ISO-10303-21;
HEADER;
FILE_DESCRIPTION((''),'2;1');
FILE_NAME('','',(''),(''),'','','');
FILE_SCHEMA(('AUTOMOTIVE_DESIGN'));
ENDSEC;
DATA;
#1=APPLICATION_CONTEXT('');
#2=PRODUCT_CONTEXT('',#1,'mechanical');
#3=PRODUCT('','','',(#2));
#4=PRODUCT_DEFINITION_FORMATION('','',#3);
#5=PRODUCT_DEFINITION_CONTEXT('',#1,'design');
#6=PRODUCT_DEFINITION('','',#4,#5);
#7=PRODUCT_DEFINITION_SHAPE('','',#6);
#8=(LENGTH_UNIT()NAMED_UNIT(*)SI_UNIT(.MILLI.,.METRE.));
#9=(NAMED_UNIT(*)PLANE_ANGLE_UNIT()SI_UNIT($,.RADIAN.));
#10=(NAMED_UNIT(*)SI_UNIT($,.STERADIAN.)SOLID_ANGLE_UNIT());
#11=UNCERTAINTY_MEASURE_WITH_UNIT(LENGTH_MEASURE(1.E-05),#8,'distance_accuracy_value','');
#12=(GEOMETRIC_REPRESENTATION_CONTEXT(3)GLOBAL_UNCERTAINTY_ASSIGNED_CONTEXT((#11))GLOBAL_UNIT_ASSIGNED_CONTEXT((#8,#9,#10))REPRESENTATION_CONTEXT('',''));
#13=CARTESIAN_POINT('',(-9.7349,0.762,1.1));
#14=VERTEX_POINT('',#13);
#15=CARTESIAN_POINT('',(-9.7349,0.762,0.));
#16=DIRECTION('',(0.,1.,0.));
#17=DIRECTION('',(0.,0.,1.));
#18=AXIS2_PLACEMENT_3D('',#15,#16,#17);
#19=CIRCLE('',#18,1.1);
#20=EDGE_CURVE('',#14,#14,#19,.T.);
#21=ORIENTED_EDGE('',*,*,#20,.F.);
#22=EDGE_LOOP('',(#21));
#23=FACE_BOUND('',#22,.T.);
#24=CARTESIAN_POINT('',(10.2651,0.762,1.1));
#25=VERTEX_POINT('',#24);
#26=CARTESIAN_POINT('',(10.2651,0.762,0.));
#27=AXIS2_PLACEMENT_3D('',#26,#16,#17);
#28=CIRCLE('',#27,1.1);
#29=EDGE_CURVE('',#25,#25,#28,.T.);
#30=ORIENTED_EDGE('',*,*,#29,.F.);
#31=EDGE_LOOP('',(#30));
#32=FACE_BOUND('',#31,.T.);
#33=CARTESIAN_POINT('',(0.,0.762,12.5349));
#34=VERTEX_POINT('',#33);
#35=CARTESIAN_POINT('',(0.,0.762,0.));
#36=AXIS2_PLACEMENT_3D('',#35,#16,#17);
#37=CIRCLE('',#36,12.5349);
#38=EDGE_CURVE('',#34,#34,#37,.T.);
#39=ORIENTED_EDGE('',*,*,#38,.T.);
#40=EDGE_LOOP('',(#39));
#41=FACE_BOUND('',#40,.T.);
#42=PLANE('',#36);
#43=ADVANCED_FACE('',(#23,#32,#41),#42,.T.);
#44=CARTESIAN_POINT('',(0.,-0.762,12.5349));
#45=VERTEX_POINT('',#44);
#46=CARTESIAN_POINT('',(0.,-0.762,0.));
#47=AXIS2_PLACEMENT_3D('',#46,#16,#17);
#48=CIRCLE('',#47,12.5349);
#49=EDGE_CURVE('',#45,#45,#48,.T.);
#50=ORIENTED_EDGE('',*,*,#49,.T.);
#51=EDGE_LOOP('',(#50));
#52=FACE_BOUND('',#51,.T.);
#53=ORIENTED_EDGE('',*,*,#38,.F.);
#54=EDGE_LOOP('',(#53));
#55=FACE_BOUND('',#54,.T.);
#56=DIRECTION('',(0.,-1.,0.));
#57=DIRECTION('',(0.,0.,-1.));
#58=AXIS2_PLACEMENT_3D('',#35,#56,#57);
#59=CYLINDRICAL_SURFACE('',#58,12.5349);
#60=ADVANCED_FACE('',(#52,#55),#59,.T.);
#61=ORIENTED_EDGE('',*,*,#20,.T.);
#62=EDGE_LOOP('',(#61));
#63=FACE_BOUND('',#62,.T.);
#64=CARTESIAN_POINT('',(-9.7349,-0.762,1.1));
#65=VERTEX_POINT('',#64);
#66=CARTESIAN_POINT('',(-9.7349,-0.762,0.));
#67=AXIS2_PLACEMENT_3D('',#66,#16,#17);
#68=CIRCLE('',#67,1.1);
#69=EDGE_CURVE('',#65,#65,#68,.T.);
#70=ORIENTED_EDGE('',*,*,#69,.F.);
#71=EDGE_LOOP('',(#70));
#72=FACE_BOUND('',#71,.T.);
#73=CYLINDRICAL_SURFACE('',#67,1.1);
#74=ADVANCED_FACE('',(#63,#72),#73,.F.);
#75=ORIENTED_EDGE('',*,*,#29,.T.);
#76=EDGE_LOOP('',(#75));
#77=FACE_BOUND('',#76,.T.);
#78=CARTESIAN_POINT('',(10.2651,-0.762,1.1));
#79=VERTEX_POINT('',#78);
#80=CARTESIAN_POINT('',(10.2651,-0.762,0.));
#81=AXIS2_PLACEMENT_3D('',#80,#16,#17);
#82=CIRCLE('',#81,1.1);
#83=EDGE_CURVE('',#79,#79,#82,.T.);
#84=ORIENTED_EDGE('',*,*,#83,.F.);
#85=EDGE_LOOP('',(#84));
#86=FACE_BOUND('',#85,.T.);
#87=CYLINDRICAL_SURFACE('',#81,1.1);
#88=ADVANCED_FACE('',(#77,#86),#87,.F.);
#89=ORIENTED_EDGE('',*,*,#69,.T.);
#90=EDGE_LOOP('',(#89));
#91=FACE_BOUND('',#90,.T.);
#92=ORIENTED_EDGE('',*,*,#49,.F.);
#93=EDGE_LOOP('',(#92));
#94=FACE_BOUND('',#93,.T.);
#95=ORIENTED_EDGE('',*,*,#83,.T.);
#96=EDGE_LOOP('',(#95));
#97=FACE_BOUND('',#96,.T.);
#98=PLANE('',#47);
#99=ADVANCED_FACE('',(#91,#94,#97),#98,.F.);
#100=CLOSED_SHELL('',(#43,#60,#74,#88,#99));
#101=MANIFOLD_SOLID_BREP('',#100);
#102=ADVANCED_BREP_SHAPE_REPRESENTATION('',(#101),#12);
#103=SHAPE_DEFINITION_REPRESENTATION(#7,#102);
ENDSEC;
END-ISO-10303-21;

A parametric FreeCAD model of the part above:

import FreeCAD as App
import Part
import Sketcher
from FreeCAD import Vector
Q = App.Units.Quantity

doc = App.newDocument("Part")
params = doc.addObject("Spreadsheet::Sheet", "Params")
for row, (alias, value) in enumerate([
    ("sketch1_diameter", "0.987 in"),
    ("pad1_length", "0.06 in"),
], start=1):
    params.set(f"A{row}", alias)
    params.set(f"B{row}", "=" + value)
    params.setAlias(f"B{row}", alias)

body = doc.addObject("PartDesign::Body", "Body")

# Sketch on XZ plane
sketch1 = body.newObject("Sketcher::SketchObject", "Sketch")
sketch1.AttachmentSupport = (doc.getObject("XZ_Plane"), [""])
sketch1.MapMode = "FlatFace"
sketch1.addGeometry(Part.Circle(Vector(0, 0, 0), Vector(0, 0, 1), 13), False)
sketch1.addConstraint([
    Sketcher.Constraint("Coincident", 0, 3, -1, 1),
    Sketcher.Constraint("Diameter", 0, Q("0.987 in")),
])
sketch1.setExpression("Constraints[1]", "Params.sketch1_diameter")
pad1 = body.newObject("PartDesign::Pad", "Pad")
pad1.Profile = sketch1
pad1.setExpression("Length", "Params.pad1_length")
pad1.Midplane = True

# Sketch on XZ plane
sketch2 = body.newObject("Sketcher::SketchObject", "Sketch001")
sketch2.AttachmentSupport = (doc.getObject("XZ_Plane"), [""])
sketch2.MapMode = "FlatFace"
sketch2.AttachmentOffset = App.Placement(Vector(0, 0, -0.03 * 25.4), App.Rotation())
sketch2.addGeometry([
    Part.Circle(Vector(-9.7, 0, 0), Vector(0, 0, 1), 1.1),
    Part.Circle(Vector(10.3, 0, 0), Vector(0, 0, 1), 1.1),
], False)
sketch2.addConstraint([
    Sketcher.Constraint("Equal", 0, 1),
    Sketcher.Constraint("PointOnObject", 0, 3, -1),
    Sketcher.Constraint("PointOnObject", 1, 3, -1),
    Sketcher.Constraint("Diameter", 0, Q("2.2 mm")),
    Sketcher.Constraint("DistanceX", 0, 3, -1, 1, Q("9.7349 mm")),
    Sketcher.Constraint("DistanceX", -1, 1, 1, 3, Q("10.2651 mm")),
])
pocket1 = body.newObject("PartDesign::Pocket", "Pocket")
pocket1.Profile = sketch2
pocket1.Type = "ThroughAll"
pocket1.Reversed = True

doc.recompute()
